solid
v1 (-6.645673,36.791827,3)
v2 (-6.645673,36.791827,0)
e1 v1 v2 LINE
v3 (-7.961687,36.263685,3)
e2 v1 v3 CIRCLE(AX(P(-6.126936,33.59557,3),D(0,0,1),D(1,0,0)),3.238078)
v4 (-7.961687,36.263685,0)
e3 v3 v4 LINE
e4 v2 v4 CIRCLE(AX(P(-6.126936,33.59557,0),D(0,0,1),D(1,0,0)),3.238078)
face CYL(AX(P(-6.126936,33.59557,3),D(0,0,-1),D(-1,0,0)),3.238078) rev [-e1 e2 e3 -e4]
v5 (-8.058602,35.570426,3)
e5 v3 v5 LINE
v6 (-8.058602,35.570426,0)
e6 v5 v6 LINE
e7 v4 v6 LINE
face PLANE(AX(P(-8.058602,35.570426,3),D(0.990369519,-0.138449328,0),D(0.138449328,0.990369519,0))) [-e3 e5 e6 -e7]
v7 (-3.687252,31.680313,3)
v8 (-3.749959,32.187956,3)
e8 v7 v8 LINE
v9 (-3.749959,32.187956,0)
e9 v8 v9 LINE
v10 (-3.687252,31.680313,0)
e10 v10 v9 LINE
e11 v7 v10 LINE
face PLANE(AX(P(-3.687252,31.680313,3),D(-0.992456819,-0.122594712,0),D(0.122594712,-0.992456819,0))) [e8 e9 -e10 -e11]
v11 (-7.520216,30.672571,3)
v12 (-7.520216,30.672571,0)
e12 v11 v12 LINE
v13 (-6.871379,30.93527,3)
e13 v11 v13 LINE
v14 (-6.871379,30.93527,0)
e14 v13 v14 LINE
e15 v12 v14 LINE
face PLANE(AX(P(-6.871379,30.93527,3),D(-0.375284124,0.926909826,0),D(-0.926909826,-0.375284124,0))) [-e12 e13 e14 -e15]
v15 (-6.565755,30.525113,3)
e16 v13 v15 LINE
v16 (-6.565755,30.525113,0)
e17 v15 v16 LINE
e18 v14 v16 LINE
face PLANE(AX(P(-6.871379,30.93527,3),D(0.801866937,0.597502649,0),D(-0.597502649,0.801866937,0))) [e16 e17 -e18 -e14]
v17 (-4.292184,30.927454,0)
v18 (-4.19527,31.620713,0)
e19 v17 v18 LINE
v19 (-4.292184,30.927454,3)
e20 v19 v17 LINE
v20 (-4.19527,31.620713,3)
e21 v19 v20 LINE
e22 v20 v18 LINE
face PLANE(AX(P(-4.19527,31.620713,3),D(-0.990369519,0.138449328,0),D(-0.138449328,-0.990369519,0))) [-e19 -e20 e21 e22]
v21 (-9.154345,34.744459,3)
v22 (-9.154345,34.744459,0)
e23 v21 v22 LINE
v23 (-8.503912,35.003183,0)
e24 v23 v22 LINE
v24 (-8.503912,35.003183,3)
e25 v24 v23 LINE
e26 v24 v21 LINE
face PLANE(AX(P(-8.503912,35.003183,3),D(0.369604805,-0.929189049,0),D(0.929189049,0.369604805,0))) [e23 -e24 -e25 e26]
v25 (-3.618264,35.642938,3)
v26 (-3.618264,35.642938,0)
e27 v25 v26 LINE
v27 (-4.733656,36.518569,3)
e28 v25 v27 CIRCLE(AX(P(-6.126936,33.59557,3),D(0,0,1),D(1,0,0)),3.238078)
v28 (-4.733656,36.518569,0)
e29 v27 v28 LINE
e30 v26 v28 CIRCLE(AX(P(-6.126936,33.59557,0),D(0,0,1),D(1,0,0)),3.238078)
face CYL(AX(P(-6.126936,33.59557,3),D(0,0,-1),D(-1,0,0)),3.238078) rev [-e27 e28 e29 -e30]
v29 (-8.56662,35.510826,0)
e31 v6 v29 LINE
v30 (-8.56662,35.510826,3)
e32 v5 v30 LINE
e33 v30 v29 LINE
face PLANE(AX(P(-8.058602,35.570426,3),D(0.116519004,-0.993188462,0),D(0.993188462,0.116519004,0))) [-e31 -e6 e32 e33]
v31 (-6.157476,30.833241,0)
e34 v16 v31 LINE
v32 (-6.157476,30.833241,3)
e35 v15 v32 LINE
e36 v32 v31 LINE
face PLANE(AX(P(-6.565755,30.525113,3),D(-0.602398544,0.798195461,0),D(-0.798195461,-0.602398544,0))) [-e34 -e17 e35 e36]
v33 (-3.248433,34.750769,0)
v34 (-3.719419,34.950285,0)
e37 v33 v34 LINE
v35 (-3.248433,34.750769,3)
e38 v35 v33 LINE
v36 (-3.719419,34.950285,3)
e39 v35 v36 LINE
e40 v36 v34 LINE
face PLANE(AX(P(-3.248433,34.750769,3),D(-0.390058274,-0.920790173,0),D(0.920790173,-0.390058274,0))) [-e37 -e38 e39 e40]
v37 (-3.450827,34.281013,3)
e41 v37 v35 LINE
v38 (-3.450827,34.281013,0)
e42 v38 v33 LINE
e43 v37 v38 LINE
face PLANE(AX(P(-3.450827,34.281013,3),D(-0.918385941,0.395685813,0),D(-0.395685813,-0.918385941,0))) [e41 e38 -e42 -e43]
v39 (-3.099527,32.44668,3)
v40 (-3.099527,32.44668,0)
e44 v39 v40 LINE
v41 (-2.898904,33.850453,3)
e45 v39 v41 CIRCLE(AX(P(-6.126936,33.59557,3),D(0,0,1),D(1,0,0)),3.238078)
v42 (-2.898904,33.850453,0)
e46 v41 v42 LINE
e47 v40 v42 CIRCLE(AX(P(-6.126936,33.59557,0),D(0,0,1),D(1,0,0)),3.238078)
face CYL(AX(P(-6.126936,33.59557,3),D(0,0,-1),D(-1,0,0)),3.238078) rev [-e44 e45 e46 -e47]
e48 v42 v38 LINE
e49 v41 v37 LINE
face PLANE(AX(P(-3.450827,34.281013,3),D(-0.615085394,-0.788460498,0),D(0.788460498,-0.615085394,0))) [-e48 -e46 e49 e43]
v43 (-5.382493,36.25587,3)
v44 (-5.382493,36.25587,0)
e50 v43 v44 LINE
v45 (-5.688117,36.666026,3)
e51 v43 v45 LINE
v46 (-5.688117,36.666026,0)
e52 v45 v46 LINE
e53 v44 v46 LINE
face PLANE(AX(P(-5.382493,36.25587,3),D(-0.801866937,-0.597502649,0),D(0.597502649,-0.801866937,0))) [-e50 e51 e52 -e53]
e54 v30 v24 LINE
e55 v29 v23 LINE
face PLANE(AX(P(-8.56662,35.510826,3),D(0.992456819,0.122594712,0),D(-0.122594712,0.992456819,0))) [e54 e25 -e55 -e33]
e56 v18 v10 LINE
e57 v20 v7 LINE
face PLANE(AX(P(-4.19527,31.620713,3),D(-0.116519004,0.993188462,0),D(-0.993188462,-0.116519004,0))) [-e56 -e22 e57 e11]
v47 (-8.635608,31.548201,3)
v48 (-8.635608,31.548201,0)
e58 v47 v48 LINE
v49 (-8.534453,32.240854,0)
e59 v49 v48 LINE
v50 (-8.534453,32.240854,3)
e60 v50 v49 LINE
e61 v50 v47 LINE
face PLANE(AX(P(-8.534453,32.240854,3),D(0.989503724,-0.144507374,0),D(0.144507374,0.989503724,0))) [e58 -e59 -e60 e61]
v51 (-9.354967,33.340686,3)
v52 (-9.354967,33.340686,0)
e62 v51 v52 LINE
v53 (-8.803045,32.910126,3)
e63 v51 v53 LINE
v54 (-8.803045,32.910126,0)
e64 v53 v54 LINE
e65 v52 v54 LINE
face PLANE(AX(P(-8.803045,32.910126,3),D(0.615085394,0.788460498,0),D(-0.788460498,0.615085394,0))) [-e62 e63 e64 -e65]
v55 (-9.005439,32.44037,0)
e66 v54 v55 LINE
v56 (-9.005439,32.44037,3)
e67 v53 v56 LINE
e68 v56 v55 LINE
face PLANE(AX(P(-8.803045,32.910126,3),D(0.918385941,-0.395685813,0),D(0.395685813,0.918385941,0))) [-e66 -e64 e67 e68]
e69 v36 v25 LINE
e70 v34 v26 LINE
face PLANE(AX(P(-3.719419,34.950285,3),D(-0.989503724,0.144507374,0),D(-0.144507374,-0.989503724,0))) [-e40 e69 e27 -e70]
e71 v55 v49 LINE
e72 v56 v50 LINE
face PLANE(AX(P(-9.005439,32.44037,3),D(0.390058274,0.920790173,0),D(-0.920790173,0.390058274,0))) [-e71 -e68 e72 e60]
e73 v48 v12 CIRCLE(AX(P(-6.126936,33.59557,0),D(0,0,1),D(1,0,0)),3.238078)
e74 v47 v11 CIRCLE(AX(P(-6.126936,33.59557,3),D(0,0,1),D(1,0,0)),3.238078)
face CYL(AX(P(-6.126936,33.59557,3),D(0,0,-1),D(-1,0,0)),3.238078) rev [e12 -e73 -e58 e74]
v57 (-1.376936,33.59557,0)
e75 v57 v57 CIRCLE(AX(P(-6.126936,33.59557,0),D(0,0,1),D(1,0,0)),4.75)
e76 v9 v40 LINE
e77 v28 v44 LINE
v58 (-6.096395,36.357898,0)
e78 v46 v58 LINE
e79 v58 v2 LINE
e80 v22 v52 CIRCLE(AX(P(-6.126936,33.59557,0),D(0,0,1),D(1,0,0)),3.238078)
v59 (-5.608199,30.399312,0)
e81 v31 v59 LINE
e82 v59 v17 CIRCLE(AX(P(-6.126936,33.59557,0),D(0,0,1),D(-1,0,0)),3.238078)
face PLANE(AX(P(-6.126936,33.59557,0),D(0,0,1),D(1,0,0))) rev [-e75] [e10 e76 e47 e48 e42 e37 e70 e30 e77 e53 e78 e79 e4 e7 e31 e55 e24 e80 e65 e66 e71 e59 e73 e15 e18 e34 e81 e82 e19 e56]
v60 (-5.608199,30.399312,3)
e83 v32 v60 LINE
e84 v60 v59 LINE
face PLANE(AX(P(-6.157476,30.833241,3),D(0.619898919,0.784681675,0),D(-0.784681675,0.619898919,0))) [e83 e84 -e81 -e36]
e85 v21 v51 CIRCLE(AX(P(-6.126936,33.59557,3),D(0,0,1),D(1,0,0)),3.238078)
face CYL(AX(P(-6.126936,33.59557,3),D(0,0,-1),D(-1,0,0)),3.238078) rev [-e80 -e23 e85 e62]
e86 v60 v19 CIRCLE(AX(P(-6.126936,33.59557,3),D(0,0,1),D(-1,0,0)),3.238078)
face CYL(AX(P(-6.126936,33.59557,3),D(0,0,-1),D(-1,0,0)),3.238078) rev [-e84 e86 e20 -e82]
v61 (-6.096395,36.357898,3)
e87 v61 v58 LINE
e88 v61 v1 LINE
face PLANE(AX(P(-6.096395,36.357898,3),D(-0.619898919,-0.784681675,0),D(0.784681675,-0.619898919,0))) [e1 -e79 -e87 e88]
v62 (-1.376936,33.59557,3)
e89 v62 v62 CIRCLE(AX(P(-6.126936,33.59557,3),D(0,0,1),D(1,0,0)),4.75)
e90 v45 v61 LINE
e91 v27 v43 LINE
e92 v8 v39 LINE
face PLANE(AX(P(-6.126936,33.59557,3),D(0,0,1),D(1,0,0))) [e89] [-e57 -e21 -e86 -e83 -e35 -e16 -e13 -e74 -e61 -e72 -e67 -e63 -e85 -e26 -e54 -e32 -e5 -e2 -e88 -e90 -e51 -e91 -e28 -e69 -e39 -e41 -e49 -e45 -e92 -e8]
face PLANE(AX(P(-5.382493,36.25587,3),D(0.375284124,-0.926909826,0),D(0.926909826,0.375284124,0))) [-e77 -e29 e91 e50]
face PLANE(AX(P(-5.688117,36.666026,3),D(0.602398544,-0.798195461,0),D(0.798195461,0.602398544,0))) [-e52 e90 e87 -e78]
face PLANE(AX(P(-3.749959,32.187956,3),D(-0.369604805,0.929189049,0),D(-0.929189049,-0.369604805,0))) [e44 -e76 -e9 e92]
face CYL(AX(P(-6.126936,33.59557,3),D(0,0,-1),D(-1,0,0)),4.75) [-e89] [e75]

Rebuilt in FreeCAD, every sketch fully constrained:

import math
import FreeCAD as App
import Part
import Sketcher

doc = App.newDocument("Part")
params = doc.addObject("Spreadsheet::Sheet", "Params")
for row, (alias, value) in enumerate([
    ("sketch1_diameter", "9.5 mm"),
    ("sketch1_length", "0.7 mm"),
    ("pad1_length", "3 mm"),
], start=1):
    params.set(f"A{row}", alias)
    params.set(f"B{row}", "=" + value)
    params.setAlias(f"B{row}", alias)

body = doc.addObject("PartDesign::Body", "Body")

# Sketch on XY plane
sketch1 = doc.addObject("Sketcher::SketchObject", "Sketch")
body.addObject(sketch1)
sketch1.AttachmentSupport = (doc.XY_Plane, [""])
sketch1.MapMode = "FlatFace"
sketch1.addGeometry([
    Part.Circle(App.Vector(-6.126936, 33.59557, 0), App.Vector(0, 0, 1), 4.75),  # 0
    Part.LineSegment(App.Vector(-5.608199, 30.399312, 0), App.Vector(-6.157476, 30.833241, 0)),  # 1
    Part.LineSegment(App.Vector(-6.157476, 30.833241, 0), App.Vector(-6.565755, 30.525113, 0)),  # 2
    Part.LineSegment(App.Vector(-6.565755, 30.525113, 0), App.Vector(-6.871379, 30.93527, 0)),  # 3
    Part.LineSegment(App.Vector(-6.871379, 30.93527, 0), App.Vector(-7.520216, 30.672571, 0)),  # 4
    Part.ArcOfCircle(Part.Circle(App.Vector(-6.126936, 33.59557, 0), App.Vector(0, 0, 1), 3.238078), math.radians(-140.781557), math.radians(-115.485322)),  # 5
    Part.LineSegment(App.Vector(-8.635608, 31.548201, 0), App.Vector(-8.534453, 32.240854, 0)),  # 6
    Part.LineSegment(App.Vector(-8.534453, 32.240854, 0), App.Vector(-9.005439, 32.44037, 0)),  # 7
    Part.LineSegment(App.Vector(-9.005439, 32.44037, 0), App.Vector(-8.803045, 32.910126, 0)),  # 8
    Part.LineSegment(App.Vector(-8.803045, 32.910126, 0), App.Vector(-9.354967, 33.340686, 0)),  # 9
    Part.ArcOfCircle(Part.Circle(App.Vector(-6.126936, 33.59557, 0), App.Vector(0, 0, 1), 3.238078), math.radians(159.218443), math.radians(184.514678)),  # 10
    Part.LineSegment(App.Vector(-9.154345, 34.744459, 0), App.Vector(-8.503912, 35.003183, 0)),  # 11
    Part.LineSegment(App.Vector(-8.503912, 35.003183, 0), App.Vector(-8.56662, 35.510826, 0)),  # 12
    Part.LineSegment(App.Vector(-8.56662, 35.510826, 0), App.Vector(-8.058602, 35.570426, 0)),  # 13
    Part.LineSegment(App.Vector(-8.058602, 35.570426, 0), App.Vector(-7.961687, 36.263685, 0)),  # 14
    Part.ArcOfCircle(Part.Circle(App.Vector(-6.126936, 33.59557, 0), App.Vector(0, 0, 1), 3.238078), math.radians(99.218443), math.radians(124.514678)),  # 15
    Part.LineSegment(App.Vector(-6.645673, 36.791827, 0), App.Vector(-6.096395, 36.357898, 0)),  # 16
    Part.LineSegment(App.Vector(-6.096395, 36.357898, 0), App.Vector(-5.688117, 36.666026, 0)),  # 17
    Part.LineSegment(App.Vector(-5.688117, 36.666026, 0), App.Vector(-5.382493, 36.25587, 0)),  # 18
    Part.LineSegment(App.Vector(-5.382493, 36.25587, 0), App.Vector(-4.733656, 36.518569, 0)),  # 19
    Part.ArcOfCircle(Part.Circle(App.Vector(-6.126936, 33.59557, 0), App.Vector(0, 0, 1), 3.238078), math.radians(39.218443), math.radians(64.514678)),  # 20
    Part.LineSegment(App.Vector(-3.618264, 35.642938, 0), App.Vector(-3.719419, 34.950285, 0)),  # 21
    Part.LineSegment(App.Vector(-3.719419, 34.950285, 0), App.Vector(-3.248433, 34.750769, 0)),  # 22
    Part.LineSegment(App.Vector(-3.248433, 34.750769, 0), App.Vector(-3.450827, 34.281013, 0)),  # 23
    Part.LineSegment(App.Vector(-3.450827, 34.281013, 0), App.Vector(-2.898904, 33.850453, 0)),  # 24
    Part.ArcOfCircle(Part.Circle(App.Vector(-6.126936, 33.59557, 0), App.Vector(0, 0, 1), 3.238078), math.radians(-20.781556), math.radians(4.514678)),  # 25
    Part.LineSegment(App.Vector(-3.099527, 32.44668, 0), App.Vector(-3.749959, 32.187956, 0)),  # 26
    Part.LineSegment(App.Vector(-3.749959, 32.187956, 0), App.Vector(-3.687252, 31.680313, 0)),  # 27
    Part.LineSegment(App.Vector(-3.687252, 31.680313, 0), App.Vector(-4.19527, 31.620713, 0)),  # 28
    Part.LineSegment(App.Vector(-4.19527, 31.620713, 0), App.Vector(-4.292184, 30.927454, 0)),  # 29
    Part.ArcOfCircle(Part.Circle(App.Vector(-6.126936, 33.59557, 0), App.Vector(0, 0, 1), 3.238078), math.radians(-80.781556), math.radians(-55.485322)),  # 30
], False)
sketch1.addConstraint([
    Sketcher.Constraint("Coincident", 1, 2, 2, 1),
    Sketcher.Constraint("Coincident", 2, 2, 3, 1),
    Sketcher.Constraint("Coincident", 3, 2, 4, 1),
    Sketcher.Constraint("Coincident", 4, 2, 5, 2),
    Sketcher.Constraint("Coincident", 5, 1, 6, 1),
    Sketcher.Constraint("Coincident", 6, 2, 7, 1),
    Sketcher.Constraint("Coincident", 7, 2, 8, 1),
    Sketcher.Constraint("Coincident", 8, 2, 9, 1),
    Sketcher.Constraint("Coincident", 9, 2, 10, 2),
    Sketcher.Constraint("Coincident", 10, 1, 11, 1),
    Sketcher.Constraint("Coincident", 11, 2, 12, 1),
    Sketcher.Constraint("Coincident", 12, 2, 13, 1),
    Sketcher.Constraint("Coincident", 13, 2, 14, 1),
    Sketcher.Constraint("Coincident", 14, 2, 15, 2),
    Sketcher.Constraint("Coincident", 15, 1, 16, 1),
    Sketcher.Constraint("Coincident", 16, 2, 17, 1),
    Sketcher.Constraint("Coincident", 17, 2, 18, 1),
    Sketcher.Constraint("Coincident", 18, 2, 19, 1),
    Sketcher.Constraint("Coincident", 19, 2, 20, 2),
    Sketcher.Constraint("Coincident", 20, 1, 21, 1),
    Sketcher.Constraint("Coincident", 21, 2, 22, 1),
    Sketcher.Constraint("Coincident", 22, 2, 23, 1),
    Sketcher.Constraint("Coincident", 23, 2, 24, 1),
    Sketcher.Constraint("Coincident", 24, 2, 25, 2),
    Sketcher.Constraint("Coincident", 25, 1, 26, 1),
    Sketcher.Constraint("Coincident", 26, 2, 27, 1),
    Sketcher.Constraint("Coincident", 27, 2, 28, 1),
    Sketcher.Constraint("Coincident", 28, 2, 29, 1),
    Sketcher.Constraint("Coincident", 29, 2, 30, 2),
    Sketcher.Constraint("Coincident", 30, 1, 1, 1),
    Sketcher.Constraint("Coincident", 5, 3, 0, 3),
    Sketcher.Constraint("Coincident", 10, 3, 0, 3),
    Sketcher.Constraint("Coincident", 15, 3, 0, 3),
    Sketcher.Constraint("Coincident", 20, 3, 0, 3),
    Sketcher.Constraint("Coincident", 25, 3, 0, 3),
    Sketcher.Constraint("Coincident", 30, 3, 0, 3),
    Sketcher.Constraint("Equal", 5, 10),
    Sketcher.Constraint("Equal", 10, 15),
    Sketcher.Constraint("Equal", 15, 20),
    Sketcher.Constraint("Equal", 20, 25),
    Sketcher.Constraint("Equal", 25, 30),
    Sketcher.Constraint("Parallel", 1, 16),
    Sketcher.Constraint("Parallel", 2, 17),
    Sketcher.Constraint("Parallel", 3, 18),
    Sketcher.Constraint("Parallel", 4, 19),
    Sketcher.Constraint("Parallel", 6, 21),
    Sketcher.Constraint("Parallel", 7, 22),
    Sketcher.Constraint("Parallel", 8, 23),
    Sketcher.Constraint("Parallel", 9, 24),
    Sketcher.Constraint("Parallel", 11, 26),
    Sketcher.Constraint("Parallel", 12, 27),
    Sketcher.Constraint("Parallel", 13, 28),
    Sketcher.Constraint("Parallel", 14, 29),
    Sketcher.Constraint("Equal", 2, 3),
    Sketcher.Constraint("Equal", 1, 4),
    Sketcher.Constraint("Equal", 4, 6),
    Sketcher.Constraint("Equal", 3, 7),
    Sketcher.Constraint("Equal", 7, 8),
    Sketcher.Constraint("Equal", 6, 9),
    Sketcher.Constraint("Equal", 9, 11),
    Sketcher.Constraint("Equal", 8, 12),
    Sketcher.Constraint("Equal", 12, 13),
    Sketcher.Constraint("Equal", 11, 14),
    Sketcher.Constraint("Equal", 14, 16),
    Sketcher.Constraint("Equal", 13, 17),
    Sketcher.Constraint("Equal", 17, 18),
    Sketcher.Constraint("Equal", 16, 19),
    Sketcher.Constraint("Equal", 19, 21),
    Sketcher.Constraint("Equal", 18, 22),
    Sketcher.Constraint("Equal", 22, 23),
    Sketcher.Constraint("Equal", 21, 24),
    Sketcher.Constraint("Equal", 24, 26),
    Sketcher.Constraint("Equal", 23, 27),
    Sketcher.Constraint("Equal", 27, 28),
    Sketcher.Constraint("Equal", 26, 29),
    Sketcher.Constraint("Diameter", 0, 9.5),
    Sketcher.Constraint("Distance", 1, 0.7),
    Sketcher.Constraint("Radius", 5, 3.238078),
    Sketcher.Constraint("DistanceY", 4, 2, 25, 3, 2.922999),
    Sketcher.Constraint("DistanceY", 12, 2, 15, 1, 1.281001),
    Sketcher.Constraint("DistanceY", -1, 1, 5, 1, 31.548201),
    Sketcher.Constraint("DistanceX", 13, 2, -1, 1, 8.058602),
    Sketcher.Constraint("DistanceY", -1, 1, 16, 2, 36.357898),
    Sketcher.Constraint("DistanceX", 30, 1, -1, 1, 5.608199),
    Sketcher.Constraint("DistanceY", 3, 2, 10, 3, 2.6603),
    Sketcher.Constraint("DistanceY", 4, 2, 7, 2, 1.767799),
    Sketcher.Constraint("DistanceX", 10, 1, 8, 2, 0.3513),
    Sketcher.Constraint("DistanceY", 8, 2, 12, 2, 2.6007),
    Sketcher.Constraint("DistanceY", 12, 2, 13, 2, 0.0596),
    Sketcher.Constraint("DistanceY", 17, 2, 15, 1, 0.125801),
    Sketcher.Constraint("DistanceY", -1, 1, 0, 3, 33.59557),
    Sketcher.Constraint("DistanceX", 3, 2, -1, 1, 6.871379),
    Sketcher.Constraint("DistanceX", 7, 2, -1, 1, 9.005439),
])
sketch1.setExpression("Constraints[75]", "Params.sketch1_diameter")
sketch1.setExpression("Constraints[76]", "Params.sketch1_length")
pad1 = doc.addObject("PartDesign::Pad", "Pad")
body.addObject(pad1)
pad1.Profile = sketch1
pad1.setExpression("Length", "Params.pad1_length")

doc.recompute()
